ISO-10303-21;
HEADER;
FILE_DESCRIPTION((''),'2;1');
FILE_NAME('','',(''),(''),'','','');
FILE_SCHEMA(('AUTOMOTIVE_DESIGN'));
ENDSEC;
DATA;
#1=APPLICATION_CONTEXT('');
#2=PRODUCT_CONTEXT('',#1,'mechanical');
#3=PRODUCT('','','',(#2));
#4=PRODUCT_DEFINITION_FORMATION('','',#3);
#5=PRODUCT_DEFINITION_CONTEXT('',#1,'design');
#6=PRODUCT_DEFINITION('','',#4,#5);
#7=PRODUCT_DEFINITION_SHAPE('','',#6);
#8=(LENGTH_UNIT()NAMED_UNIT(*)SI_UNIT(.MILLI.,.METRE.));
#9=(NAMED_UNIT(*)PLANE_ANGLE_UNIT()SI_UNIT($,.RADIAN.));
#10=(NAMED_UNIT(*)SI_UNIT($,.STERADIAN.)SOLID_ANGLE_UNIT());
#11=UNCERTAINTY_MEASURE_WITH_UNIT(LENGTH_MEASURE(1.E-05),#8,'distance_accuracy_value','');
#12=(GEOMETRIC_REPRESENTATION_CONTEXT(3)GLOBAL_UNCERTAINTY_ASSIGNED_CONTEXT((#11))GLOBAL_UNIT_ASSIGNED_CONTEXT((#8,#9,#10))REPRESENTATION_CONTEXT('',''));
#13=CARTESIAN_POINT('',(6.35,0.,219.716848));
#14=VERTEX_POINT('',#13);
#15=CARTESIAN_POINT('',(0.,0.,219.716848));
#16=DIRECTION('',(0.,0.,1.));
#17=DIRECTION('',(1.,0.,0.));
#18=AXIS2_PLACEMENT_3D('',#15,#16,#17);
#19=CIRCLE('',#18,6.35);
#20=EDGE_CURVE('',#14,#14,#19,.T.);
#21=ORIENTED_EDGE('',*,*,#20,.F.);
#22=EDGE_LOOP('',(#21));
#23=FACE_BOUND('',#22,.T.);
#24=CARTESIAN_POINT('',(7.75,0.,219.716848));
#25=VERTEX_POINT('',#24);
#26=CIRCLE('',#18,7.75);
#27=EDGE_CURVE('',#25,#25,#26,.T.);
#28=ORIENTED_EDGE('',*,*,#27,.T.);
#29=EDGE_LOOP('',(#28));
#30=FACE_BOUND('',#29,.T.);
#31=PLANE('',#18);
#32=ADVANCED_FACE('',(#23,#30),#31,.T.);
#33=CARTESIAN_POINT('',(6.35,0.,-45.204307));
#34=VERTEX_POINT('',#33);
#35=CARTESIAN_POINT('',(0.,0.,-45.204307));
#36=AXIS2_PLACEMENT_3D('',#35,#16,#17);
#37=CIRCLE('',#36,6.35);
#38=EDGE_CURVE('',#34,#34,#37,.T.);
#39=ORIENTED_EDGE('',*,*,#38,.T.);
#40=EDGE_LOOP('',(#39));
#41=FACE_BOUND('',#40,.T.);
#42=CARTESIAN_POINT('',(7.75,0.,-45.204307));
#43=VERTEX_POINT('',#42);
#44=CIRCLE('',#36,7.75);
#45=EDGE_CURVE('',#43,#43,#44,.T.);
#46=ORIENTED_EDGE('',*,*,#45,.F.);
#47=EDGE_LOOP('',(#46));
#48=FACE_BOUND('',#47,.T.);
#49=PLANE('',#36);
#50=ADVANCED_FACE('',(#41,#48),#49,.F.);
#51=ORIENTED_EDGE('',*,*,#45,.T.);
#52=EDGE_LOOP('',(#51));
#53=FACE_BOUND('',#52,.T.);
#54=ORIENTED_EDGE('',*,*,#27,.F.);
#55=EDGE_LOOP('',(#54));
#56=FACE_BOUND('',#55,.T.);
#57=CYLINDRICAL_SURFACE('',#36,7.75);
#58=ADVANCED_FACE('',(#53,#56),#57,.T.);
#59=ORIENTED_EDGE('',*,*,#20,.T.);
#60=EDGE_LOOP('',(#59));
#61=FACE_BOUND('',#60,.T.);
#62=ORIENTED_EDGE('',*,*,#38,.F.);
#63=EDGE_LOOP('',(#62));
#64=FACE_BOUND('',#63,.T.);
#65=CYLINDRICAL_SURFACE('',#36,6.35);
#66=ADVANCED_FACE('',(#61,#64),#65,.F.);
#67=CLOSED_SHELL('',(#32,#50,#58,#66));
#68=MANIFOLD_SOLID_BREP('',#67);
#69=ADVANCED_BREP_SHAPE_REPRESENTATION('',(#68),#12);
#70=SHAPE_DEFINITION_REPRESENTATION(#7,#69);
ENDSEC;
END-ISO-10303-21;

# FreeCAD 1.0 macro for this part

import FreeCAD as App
import Part
import Sketcher

V = App.Vector
Q = App.Units.Quantity

doc = App.newDocument("Part")
body = doc.addObject("PartDesign::Body", "Body")

sketch1 = body.newObject("Sketcher::SketchObject", "Sketch")
sketch1.AttachmentSupport = (doc.getObject("XY_Plane"), [""])
sketch1.MapMode = "FlatFace"
sketch1.addGeometry(Part.Circle(V(0, 0, 0), V(0, 0, 1), 7.75), False)
sketch1.addGeometry(Part.Circle(V(0, 0, 0), V(0, 0, 1), 6.35), False)
sketch1.addConstraint(Sketcher.Constraint("Coincident", 0, 3, -1, 1))
sketch1.addConstraint(Sketcher.Constraint("Coincident", 1, 3, -1, 1))
sketch1.addConstraint(Sketcher.Constraint("Diameter", 0, Q("15.5 mm")))
sketch1.addConstraint(Sketcher.Constraint("Diameter", 1, Q("12.7 mm")))
pad1 = body.newObject("PartDesign::Pad", "Pad")
pad1.Profile = sketch1
pad1.Type = "TwoLengths"
pad1.Length = 219.716848
pad1.Length2 = 45.204307

doc.recompute()
